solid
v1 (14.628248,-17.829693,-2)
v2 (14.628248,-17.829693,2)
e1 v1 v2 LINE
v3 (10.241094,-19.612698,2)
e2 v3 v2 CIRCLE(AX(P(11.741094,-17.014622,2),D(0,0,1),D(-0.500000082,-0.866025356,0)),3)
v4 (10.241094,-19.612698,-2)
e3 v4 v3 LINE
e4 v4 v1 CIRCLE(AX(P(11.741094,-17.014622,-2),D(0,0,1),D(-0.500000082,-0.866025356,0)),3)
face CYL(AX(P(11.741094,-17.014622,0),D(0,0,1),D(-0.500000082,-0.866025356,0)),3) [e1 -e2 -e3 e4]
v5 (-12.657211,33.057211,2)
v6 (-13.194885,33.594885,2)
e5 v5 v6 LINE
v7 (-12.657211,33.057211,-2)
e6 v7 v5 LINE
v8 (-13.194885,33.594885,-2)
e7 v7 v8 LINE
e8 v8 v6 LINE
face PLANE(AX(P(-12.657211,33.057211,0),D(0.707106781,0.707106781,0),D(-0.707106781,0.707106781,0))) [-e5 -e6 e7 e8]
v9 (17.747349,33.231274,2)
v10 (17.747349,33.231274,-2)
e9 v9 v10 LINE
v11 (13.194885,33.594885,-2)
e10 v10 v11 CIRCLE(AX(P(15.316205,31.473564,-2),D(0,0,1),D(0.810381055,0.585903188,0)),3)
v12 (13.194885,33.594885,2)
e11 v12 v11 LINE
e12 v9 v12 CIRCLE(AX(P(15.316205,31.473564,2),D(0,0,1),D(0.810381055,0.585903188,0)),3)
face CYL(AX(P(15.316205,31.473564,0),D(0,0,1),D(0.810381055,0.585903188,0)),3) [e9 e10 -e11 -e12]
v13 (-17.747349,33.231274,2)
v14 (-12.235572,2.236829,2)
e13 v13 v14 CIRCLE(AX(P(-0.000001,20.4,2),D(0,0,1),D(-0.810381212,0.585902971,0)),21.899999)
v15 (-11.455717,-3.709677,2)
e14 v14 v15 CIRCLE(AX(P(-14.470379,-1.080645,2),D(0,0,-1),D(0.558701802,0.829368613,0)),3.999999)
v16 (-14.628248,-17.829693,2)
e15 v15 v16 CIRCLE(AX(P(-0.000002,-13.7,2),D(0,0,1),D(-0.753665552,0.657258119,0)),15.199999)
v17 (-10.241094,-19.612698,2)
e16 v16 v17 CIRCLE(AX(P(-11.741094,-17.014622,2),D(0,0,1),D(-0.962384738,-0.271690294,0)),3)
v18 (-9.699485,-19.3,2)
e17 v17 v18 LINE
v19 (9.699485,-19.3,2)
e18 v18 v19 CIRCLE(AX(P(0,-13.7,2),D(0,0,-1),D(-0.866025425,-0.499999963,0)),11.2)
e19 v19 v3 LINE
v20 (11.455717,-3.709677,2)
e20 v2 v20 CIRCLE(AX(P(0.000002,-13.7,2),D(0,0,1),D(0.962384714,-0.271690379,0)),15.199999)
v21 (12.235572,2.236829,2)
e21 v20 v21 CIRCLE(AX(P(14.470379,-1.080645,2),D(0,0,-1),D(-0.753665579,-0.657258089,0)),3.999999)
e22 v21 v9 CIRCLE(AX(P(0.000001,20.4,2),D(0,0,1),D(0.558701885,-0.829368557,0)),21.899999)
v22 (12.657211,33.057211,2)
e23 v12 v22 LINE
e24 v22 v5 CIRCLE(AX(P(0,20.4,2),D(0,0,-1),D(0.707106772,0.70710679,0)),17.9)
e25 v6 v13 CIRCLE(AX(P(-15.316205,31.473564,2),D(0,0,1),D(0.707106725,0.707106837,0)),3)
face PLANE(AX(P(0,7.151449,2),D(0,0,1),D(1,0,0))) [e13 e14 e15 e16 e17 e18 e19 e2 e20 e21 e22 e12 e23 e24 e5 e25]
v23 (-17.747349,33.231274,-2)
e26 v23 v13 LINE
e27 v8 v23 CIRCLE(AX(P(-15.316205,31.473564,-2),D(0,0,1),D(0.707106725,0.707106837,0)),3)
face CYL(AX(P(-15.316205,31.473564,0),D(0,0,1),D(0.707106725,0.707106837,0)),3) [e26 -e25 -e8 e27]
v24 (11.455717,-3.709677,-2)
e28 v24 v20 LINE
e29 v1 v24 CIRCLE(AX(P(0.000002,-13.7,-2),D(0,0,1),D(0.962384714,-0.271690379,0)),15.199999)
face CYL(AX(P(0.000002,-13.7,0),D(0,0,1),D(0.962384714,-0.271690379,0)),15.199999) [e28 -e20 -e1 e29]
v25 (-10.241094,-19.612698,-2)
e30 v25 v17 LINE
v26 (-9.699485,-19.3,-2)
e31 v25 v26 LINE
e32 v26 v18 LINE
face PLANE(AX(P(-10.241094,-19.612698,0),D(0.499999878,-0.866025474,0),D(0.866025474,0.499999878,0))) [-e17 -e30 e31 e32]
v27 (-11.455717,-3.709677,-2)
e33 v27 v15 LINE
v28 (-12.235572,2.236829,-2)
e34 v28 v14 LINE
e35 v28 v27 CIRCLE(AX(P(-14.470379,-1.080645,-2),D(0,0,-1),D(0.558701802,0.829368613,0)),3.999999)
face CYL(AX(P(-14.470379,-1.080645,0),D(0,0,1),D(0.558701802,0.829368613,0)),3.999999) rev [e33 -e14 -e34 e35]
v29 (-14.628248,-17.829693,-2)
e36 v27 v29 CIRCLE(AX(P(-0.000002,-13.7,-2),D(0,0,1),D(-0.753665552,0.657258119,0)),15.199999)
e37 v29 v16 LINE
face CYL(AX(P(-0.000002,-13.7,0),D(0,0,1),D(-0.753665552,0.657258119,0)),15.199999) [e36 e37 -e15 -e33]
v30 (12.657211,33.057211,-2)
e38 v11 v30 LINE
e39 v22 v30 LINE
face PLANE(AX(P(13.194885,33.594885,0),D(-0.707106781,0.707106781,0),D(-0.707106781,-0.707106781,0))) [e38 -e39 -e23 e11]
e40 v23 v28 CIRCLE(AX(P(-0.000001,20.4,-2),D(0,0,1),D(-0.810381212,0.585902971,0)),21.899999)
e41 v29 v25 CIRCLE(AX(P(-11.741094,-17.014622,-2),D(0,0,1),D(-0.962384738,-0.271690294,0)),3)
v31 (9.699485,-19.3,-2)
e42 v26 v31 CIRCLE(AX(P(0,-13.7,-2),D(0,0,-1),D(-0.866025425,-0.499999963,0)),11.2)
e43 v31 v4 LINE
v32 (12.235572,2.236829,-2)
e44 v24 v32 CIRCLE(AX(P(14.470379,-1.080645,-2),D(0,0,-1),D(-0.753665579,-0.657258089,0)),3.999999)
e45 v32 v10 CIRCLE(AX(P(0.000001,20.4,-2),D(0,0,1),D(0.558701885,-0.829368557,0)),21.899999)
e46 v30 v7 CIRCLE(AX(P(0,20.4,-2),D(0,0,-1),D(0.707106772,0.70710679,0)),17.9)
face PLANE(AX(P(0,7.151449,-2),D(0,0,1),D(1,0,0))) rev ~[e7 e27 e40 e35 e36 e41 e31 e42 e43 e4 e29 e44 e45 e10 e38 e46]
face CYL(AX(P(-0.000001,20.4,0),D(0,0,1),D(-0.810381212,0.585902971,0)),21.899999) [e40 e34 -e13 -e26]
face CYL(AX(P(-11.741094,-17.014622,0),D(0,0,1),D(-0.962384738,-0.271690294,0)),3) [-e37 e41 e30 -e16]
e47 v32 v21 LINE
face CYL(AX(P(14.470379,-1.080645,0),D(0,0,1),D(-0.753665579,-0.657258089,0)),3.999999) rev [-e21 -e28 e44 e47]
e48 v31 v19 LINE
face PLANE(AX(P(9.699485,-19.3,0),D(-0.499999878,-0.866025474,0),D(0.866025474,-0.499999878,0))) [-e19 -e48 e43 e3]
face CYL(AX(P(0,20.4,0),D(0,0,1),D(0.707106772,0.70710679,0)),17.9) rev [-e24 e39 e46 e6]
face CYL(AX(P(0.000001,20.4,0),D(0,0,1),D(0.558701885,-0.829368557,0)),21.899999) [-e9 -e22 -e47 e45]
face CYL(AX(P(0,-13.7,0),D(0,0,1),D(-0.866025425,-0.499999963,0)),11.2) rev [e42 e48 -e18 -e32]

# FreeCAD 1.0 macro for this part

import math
import FreeCAD as App
import Part
import Sketcher
from FreeCAD import Vector
Q = App.Units.Quantity

doc = App.newDocument("Part")
body = doc.addObject("PartDesign::Body", "Body")

# Sketch on XY plane
sketch1 = doc.addObject("Sketcher::SketchObject", "Sketch")
body.addObject(sketch1)
sketch1.AttachmentSupport = (doc.XY_Plane, [""])
sketch1.MapMode = "FlatFace"
sketch1.addGeometry(Part.ArcOfCircle(Part.Circle(Vector(0, 20.4, 0), Vector(0, 0, 1), 17.9), math.radians(135), math.radians(405)), False)
sketch1.addGeometry(Part.LineSegment(Vector(-12.7, 33.1, 0), Vector(-13.2, 33.6, 0)), False)
sketch1.addGeometry(Part.ArcOfCircle(Part.Circle(Vector(-15.3, 31.5, 0), Vector(0, 0, 1), 3), math.radians(45), math.radians(144)), False)
sketch1.addGeometry(Part.ArcOfCircle(Part.Circle(Vector(0, 20.4, 0), Vector(0, 0, 1), 21.9), math.radians(144), math.radians(236)), False)
sketch1.addGeometry(Part.ArcOfCircle(Part.Circle(Vector(-14.5, -1.1, 0), Vector(0, 0, 1), 4), math.radians(-41), math.radians(56)), False)
sketch1.addGeometry(Part.ArcOfCircle(Part.Circle(Vector(0, -13.7, 0), Vector(0, 0, 1), 15.2), math.radians(139), math.radians(196)), False)
sketch1.addGeometry(Part.ArcOfCircle(Part.Circle(Vector(-11.7, -17, 0), Vector(0, 0, 1), 3), math.radians(-164), math.radians(-60)), False)
sketch1.addGeometry(Part.LineSegment(Vector(-10.2, -19.6, 0), Vector(-9.7, -19.3, 0)), False)
sketch1.addGeometry(Part.ArcOfCircle(Part.Circle(Vector(0, -13.7, 0), Vector(0, 0, 1), 11.2), math.radians(-30), math.radians(210)), False)
sketch1.addGeometry(Part.LineSegment(Vector(9.7, -19.3, 0), Vector(10.2, -19.6, 0)), False)
sketch1.addGeometry(Part.ArcOfCircle(Part.Circle(Vector(11.7, -17, 0), Vector(0, 0, 1), 3), math.radians(-120), math.radians(-16)), False)
sketch1.addGeometry(Part.ArcOfCircle(Part.Circle(Vector(0, -13.7, 0), Vector(0, 0, 1), 15.2), math.radians(-16), math.radians(41)), False)
sketch1.addGeometry(Part.ArcOfCircle(Part.Circle(Vector(14.5, -1.1, 0), Vector(0, 0, 1), 4), math.radians(124), math.radians(221)), False)
sketch1.addGeometry(Part.ArcOfCircle(Part.Circle(Vector(0, 20.4, 0), Vector(0, 0, 1), 21.9), math.radians(-56), math.radians(36)), False)
sketch1.addGeometry(Part.ArcOfCircle(Part.Circle(Vector(15.3, 31.5, 0), Vector(0, 0, 1), 3), math.radians(36), math.radians(135)), False)
sketch1.addGeometry(Part.LineSegment(Vector(13.2, 33.6, 0), Vector(12.7, 33.1, 0)), False)
sketch1.addConstraint(Sketcher.Constraint("Coincident", 0, 1, 1, 1))
sketch1.addConstraint(Sketcher.Constraint("Tangent", 1, 2, 2, 1))
sketch1.addConstraint(Sketcher.Constraint("Tangent", 2, 2, 3, 1))
sketch1.addConstraint(Sketcher.Constraint("Tangent", 3, 2, 4, 2))
sketch1.addConstraint(Sketcher.Constraint("Tangent", 4, 1, 5, 1))
sketch1.addConstraint(Sketcher.Constraint("Tangent", 5, 2, 6, 1))
sketch1.addConstraint(Sketcher.Constraint("Tangent", 6, 2, 7, 1))
sketch1.addConstraint(Sketcher.Constraint("Coincident", 7, 2, 8, 2))
sketch1.addConstraint(Sketcher.Constraint("Coincident", 8, 1, 9, 1))
sketch1.addConstraint(Sketcher.Constraint("Tangent", 9, 2, 10, 1))
sketch1.addConstraint(Sketcher.Constraint("Tangent", 10, 2, 11, 1))
sketch1.addConstraint(Sketcher.Constraint("Tangent", 11, 2, 12, 2))
sketch1.addConstraint(Sketcher.Constraint("Tangent", 12, 1, 13, 1))
sketch1.addConstraint(Sketcher.Constraint("Tangent", 13, 2, 14, 1))
sketch1.addConstraint(Sketcher.Constraint("Tangent", 14, 2, 15, 1))
sketch1.addConstraint(Sketcher.Constraint("Coincident", 15, 2, 0, 2))
sketch1.addConstraint(Sketcher.Constraint("Coincident", 3, 3, 0, 3))
sketch1.addConstraint(Sketcher.Constraint("Coincident", 8, 3, 5, 3))
sketch1.addConstraint(Sketcher.Constraint("Coincident", 11, 3, 5, 3))
sketch1.addConstraint(Sketcher.Constraint("Coincident", 13, 3, 0, 3))
sketch1.addConstraint(Sketcher.Constraint("Equal", 2, 6))
sketch1.addConstraint(Sketcher.Constraint("Equal", 6, 10))
sketch1.addConstraint(Sketcher.Constraint("Equal", 5, 11))
sketch1.addConstraint(Sketcher.Constraint("Equal", 4, 12))
sketch1.addConstraint(Sketcher.Constraint("Equal", 3, 13))
sketch1.addConstraint(Sketcher.Constraint("Equal", 10, 14))
sketch1.addConstraint(Sketcher.Constraint("Symmetric", 6, 3, 10, 3, -2))
sketch1.addConstraint(Sketcher.Constraint("Symmetric", 2, 3, 14, 3, -2))
sketch1.addConstraint(Sketcher.Constraint("Perpendicular", 1, 15))
sketch1.addConstraint(Sketcher.Constraint("Horizontal", 7, 2, 8, 1))
sketch1.addConstraint(Sketcher.Constraint("Horizontal", 1, 2, 14, 2))
sketch1.addConstraint(Sketcher.Constraint("Radius", 2, 3.0))
sketch1.addConstraint(Sketcher.Constraint("Radius", 4, 3.999999))
sketch1.addConstraint(Sketcher.Constraint("Radius", 0, 17.9))
sketch1.addConstraint(Sketcher.Constraint("Radius", 3, 21.899999))
sketch1.addConstraint(Sketcher.Constraint("Radius", 5, 15.199999))
sketch1.addConstraint(Sketcher.Constraint("Radius", 8, 11.2))
sketch1.addConstraint(Sketcher.Constraint("Angle", 7, Q("29.999992 deg")))
sketch1.addConstraint(Sketcher.Constraint("DistanceY", -1, 1, 0, 3, 20.4))
sketch1.addConstraint(Sketcher.Constraint("DistanceY", 5, 3, -1, 1, 13.7))
sketch1.addConstraint(Sketcher.Constraint("DistanceY", 7, 2, -1, 1, 19.3))
sketch1.addConstraint(Sketcher.Constraint("DistanceX", 0, 1, -1, 1, 12.657211))
pad1 = doc.addObject("PartDesign::Pad", "Pad")
body.addObject(pad1)
pad1.Profile = sketch1
pad1.Length = 4
pad1.Midplane = True

doc.recompute()
